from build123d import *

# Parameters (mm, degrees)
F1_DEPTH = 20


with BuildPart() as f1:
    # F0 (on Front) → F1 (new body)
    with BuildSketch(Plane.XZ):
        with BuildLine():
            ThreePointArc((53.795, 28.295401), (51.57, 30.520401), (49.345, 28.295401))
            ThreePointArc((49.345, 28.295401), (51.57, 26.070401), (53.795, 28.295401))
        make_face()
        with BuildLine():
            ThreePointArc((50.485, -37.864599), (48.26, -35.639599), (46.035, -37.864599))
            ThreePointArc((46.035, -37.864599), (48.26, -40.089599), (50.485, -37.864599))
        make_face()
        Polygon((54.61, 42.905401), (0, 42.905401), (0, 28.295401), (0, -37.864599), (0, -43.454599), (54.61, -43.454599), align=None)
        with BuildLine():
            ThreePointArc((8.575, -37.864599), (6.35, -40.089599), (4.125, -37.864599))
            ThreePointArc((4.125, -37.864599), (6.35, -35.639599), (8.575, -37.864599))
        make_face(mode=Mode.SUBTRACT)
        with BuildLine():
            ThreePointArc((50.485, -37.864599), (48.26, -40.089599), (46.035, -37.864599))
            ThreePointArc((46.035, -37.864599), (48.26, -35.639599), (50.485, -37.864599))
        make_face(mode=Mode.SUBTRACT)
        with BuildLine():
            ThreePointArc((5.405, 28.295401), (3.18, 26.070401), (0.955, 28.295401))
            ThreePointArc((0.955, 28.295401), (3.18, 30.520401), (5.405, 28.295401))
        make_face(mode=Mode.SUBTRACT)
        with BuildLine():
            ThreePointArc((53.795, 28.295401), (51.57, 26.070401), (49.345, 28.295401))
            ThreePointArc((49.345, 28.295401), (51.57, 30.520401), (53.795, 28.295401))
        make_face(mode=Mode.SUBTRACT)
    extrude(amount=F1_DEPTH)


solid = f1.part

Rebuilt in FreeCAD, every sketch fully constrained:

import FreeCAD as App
import Part
import Sketcher

V = App.Vector
Q = App.Units.Quantity

doc = App.newDocument("Part")
body = doc.addObject("PartDesign::Body", "Body")

# Sketch on XZ plane
sketch1 = body.newObject("Sketcher::SketchObject", "Sketch")
sketch1.AttachmentSupport = (doc.getObject("XZ_Plane"), [""])
sketch1.MapMode = "FlatFace"
sketch1.addGeometry(Part.LineSegment(V(54.6, 42.9, 0), V(0, 42.9, 0)), False)
sketch1.addGeometry(Part.LineSegment(V(0, 42.9, 0), V(0, -43.5, 0)), False)
sketch1.addGeometry(Part.LineSegment(V(0, -43.5, 0), V(54.6, -43.5, 0)), False)
sketch1.addGeometry(Part.LineSegment(V(54.6, -43.5, 0), V(54.6, 42.9, 0)), False)
sketch1.addGeometry(Part.Circle(V(6.3, -37.9, 0), V(0, 0, 1), 2.2), False)
sketch1.addGeometry(Part.Circle(V(48.3, -37.9, 0), V(0, 0, 1), 2.2), False)
sketch1.addGeometry(Part.Circle(V(3.2, 28.3, 0), V(0, 0, 1), 2.2), False)
sketch1.addGeometry(Part.Circle(V(51.6, 28.3, 0), V(0, 0, 1), 2.2), False)
sketch1.addConstraint(Sketcher.Constraint("Coincident", 0, 2, 1, 1))
sketch1.addConstraint(Sketcher.Constraint("Coincident", 1, 2, 2, 1))
sketch1.addConstraint(Sketcher.Constraint("Coincident", 2, 2, 3, 1))
sketch1.addConstraint(Sketcher.Constraint("Coincident", 3, 2, 0, 1))
sketch1.addConstraint(Sketcher.Constraint("Horizontal", 0))
sketch1.addConstraint(Sketcher.Constraint("Vertical", 1))
sketch1.addConstraint(Sketcher.Constraint("Horizontal", 2))
sketch1.addConstraint(Sketcher.Constraint("Vertical", 3))
sketch1.addConstraint(Sketcher.Constraint("Equal", 4, 5))
sketch1.addConstraint(Sketcher.Constraint("Equal", 5, 6))
sketch1.addConstraint(Sketcher.Constraint("Equal", 6, 7))
sketch1.addConstraint(Sketcher.Constraint("PointOnObject", 0, 2, -2))
sketch1.addConstraint(Sketcher.Constraint("Horizontal", 4, 3, 5, 3))
sketch1.addConstraint(Sketcher.Constraint("Horizontal", 6, 3, 7, 3))
sketch1.addConstraint(Sketcher.Constraint("DistanceY", 1, 2, 1, 1, Q("3.4 in")))
sketch1.addConstraint(Sketcher.Constraint("DistanceX", 0, 2, 0, 1, Q("2.15 in")))
sketch1.addConstraint(Sketcher.Constraint("DistanceX", -1, 1, 5, 3, Q("1.9 in")))
sketch1.addConstraint(Sketcher.Constraint("DistanceX", 4, 3, 2, 2, Q("1.9 in")))
sketch1.addConstraint(Sketcher.Constraint("Diameter", 4, Q("4.45 mm")))
sketch1.addConstraint(Sketcher.Constraint("DistanceY", 4, 3, -1, 1, Q("37.864599 mm")))
sketch1.addConstraint(Sketcher.Constraint("DistanceX", -1, 1, 6, 3, Q("3.18 mm")))
sketch1.addConstraint(Sketcher.Constraint("DistanceY", -1, 1, 6, 3, Q("28.295401 mm")))
sketch1.addConstraint(Sketcher.Constraint("DistanceX", -1, 1, 7, 3, Q("51.57 mm")))
sketch1.addConstraint(Sketcher.Constraint("DistanceY", -1, 1, 0, 2, Q("42.905401 mm")))
pad1 = body.newObject("PartDesign::Pad", "Pad")
pad1.Profile = sketch1
pad1.Length = 20

doc.recompute()
